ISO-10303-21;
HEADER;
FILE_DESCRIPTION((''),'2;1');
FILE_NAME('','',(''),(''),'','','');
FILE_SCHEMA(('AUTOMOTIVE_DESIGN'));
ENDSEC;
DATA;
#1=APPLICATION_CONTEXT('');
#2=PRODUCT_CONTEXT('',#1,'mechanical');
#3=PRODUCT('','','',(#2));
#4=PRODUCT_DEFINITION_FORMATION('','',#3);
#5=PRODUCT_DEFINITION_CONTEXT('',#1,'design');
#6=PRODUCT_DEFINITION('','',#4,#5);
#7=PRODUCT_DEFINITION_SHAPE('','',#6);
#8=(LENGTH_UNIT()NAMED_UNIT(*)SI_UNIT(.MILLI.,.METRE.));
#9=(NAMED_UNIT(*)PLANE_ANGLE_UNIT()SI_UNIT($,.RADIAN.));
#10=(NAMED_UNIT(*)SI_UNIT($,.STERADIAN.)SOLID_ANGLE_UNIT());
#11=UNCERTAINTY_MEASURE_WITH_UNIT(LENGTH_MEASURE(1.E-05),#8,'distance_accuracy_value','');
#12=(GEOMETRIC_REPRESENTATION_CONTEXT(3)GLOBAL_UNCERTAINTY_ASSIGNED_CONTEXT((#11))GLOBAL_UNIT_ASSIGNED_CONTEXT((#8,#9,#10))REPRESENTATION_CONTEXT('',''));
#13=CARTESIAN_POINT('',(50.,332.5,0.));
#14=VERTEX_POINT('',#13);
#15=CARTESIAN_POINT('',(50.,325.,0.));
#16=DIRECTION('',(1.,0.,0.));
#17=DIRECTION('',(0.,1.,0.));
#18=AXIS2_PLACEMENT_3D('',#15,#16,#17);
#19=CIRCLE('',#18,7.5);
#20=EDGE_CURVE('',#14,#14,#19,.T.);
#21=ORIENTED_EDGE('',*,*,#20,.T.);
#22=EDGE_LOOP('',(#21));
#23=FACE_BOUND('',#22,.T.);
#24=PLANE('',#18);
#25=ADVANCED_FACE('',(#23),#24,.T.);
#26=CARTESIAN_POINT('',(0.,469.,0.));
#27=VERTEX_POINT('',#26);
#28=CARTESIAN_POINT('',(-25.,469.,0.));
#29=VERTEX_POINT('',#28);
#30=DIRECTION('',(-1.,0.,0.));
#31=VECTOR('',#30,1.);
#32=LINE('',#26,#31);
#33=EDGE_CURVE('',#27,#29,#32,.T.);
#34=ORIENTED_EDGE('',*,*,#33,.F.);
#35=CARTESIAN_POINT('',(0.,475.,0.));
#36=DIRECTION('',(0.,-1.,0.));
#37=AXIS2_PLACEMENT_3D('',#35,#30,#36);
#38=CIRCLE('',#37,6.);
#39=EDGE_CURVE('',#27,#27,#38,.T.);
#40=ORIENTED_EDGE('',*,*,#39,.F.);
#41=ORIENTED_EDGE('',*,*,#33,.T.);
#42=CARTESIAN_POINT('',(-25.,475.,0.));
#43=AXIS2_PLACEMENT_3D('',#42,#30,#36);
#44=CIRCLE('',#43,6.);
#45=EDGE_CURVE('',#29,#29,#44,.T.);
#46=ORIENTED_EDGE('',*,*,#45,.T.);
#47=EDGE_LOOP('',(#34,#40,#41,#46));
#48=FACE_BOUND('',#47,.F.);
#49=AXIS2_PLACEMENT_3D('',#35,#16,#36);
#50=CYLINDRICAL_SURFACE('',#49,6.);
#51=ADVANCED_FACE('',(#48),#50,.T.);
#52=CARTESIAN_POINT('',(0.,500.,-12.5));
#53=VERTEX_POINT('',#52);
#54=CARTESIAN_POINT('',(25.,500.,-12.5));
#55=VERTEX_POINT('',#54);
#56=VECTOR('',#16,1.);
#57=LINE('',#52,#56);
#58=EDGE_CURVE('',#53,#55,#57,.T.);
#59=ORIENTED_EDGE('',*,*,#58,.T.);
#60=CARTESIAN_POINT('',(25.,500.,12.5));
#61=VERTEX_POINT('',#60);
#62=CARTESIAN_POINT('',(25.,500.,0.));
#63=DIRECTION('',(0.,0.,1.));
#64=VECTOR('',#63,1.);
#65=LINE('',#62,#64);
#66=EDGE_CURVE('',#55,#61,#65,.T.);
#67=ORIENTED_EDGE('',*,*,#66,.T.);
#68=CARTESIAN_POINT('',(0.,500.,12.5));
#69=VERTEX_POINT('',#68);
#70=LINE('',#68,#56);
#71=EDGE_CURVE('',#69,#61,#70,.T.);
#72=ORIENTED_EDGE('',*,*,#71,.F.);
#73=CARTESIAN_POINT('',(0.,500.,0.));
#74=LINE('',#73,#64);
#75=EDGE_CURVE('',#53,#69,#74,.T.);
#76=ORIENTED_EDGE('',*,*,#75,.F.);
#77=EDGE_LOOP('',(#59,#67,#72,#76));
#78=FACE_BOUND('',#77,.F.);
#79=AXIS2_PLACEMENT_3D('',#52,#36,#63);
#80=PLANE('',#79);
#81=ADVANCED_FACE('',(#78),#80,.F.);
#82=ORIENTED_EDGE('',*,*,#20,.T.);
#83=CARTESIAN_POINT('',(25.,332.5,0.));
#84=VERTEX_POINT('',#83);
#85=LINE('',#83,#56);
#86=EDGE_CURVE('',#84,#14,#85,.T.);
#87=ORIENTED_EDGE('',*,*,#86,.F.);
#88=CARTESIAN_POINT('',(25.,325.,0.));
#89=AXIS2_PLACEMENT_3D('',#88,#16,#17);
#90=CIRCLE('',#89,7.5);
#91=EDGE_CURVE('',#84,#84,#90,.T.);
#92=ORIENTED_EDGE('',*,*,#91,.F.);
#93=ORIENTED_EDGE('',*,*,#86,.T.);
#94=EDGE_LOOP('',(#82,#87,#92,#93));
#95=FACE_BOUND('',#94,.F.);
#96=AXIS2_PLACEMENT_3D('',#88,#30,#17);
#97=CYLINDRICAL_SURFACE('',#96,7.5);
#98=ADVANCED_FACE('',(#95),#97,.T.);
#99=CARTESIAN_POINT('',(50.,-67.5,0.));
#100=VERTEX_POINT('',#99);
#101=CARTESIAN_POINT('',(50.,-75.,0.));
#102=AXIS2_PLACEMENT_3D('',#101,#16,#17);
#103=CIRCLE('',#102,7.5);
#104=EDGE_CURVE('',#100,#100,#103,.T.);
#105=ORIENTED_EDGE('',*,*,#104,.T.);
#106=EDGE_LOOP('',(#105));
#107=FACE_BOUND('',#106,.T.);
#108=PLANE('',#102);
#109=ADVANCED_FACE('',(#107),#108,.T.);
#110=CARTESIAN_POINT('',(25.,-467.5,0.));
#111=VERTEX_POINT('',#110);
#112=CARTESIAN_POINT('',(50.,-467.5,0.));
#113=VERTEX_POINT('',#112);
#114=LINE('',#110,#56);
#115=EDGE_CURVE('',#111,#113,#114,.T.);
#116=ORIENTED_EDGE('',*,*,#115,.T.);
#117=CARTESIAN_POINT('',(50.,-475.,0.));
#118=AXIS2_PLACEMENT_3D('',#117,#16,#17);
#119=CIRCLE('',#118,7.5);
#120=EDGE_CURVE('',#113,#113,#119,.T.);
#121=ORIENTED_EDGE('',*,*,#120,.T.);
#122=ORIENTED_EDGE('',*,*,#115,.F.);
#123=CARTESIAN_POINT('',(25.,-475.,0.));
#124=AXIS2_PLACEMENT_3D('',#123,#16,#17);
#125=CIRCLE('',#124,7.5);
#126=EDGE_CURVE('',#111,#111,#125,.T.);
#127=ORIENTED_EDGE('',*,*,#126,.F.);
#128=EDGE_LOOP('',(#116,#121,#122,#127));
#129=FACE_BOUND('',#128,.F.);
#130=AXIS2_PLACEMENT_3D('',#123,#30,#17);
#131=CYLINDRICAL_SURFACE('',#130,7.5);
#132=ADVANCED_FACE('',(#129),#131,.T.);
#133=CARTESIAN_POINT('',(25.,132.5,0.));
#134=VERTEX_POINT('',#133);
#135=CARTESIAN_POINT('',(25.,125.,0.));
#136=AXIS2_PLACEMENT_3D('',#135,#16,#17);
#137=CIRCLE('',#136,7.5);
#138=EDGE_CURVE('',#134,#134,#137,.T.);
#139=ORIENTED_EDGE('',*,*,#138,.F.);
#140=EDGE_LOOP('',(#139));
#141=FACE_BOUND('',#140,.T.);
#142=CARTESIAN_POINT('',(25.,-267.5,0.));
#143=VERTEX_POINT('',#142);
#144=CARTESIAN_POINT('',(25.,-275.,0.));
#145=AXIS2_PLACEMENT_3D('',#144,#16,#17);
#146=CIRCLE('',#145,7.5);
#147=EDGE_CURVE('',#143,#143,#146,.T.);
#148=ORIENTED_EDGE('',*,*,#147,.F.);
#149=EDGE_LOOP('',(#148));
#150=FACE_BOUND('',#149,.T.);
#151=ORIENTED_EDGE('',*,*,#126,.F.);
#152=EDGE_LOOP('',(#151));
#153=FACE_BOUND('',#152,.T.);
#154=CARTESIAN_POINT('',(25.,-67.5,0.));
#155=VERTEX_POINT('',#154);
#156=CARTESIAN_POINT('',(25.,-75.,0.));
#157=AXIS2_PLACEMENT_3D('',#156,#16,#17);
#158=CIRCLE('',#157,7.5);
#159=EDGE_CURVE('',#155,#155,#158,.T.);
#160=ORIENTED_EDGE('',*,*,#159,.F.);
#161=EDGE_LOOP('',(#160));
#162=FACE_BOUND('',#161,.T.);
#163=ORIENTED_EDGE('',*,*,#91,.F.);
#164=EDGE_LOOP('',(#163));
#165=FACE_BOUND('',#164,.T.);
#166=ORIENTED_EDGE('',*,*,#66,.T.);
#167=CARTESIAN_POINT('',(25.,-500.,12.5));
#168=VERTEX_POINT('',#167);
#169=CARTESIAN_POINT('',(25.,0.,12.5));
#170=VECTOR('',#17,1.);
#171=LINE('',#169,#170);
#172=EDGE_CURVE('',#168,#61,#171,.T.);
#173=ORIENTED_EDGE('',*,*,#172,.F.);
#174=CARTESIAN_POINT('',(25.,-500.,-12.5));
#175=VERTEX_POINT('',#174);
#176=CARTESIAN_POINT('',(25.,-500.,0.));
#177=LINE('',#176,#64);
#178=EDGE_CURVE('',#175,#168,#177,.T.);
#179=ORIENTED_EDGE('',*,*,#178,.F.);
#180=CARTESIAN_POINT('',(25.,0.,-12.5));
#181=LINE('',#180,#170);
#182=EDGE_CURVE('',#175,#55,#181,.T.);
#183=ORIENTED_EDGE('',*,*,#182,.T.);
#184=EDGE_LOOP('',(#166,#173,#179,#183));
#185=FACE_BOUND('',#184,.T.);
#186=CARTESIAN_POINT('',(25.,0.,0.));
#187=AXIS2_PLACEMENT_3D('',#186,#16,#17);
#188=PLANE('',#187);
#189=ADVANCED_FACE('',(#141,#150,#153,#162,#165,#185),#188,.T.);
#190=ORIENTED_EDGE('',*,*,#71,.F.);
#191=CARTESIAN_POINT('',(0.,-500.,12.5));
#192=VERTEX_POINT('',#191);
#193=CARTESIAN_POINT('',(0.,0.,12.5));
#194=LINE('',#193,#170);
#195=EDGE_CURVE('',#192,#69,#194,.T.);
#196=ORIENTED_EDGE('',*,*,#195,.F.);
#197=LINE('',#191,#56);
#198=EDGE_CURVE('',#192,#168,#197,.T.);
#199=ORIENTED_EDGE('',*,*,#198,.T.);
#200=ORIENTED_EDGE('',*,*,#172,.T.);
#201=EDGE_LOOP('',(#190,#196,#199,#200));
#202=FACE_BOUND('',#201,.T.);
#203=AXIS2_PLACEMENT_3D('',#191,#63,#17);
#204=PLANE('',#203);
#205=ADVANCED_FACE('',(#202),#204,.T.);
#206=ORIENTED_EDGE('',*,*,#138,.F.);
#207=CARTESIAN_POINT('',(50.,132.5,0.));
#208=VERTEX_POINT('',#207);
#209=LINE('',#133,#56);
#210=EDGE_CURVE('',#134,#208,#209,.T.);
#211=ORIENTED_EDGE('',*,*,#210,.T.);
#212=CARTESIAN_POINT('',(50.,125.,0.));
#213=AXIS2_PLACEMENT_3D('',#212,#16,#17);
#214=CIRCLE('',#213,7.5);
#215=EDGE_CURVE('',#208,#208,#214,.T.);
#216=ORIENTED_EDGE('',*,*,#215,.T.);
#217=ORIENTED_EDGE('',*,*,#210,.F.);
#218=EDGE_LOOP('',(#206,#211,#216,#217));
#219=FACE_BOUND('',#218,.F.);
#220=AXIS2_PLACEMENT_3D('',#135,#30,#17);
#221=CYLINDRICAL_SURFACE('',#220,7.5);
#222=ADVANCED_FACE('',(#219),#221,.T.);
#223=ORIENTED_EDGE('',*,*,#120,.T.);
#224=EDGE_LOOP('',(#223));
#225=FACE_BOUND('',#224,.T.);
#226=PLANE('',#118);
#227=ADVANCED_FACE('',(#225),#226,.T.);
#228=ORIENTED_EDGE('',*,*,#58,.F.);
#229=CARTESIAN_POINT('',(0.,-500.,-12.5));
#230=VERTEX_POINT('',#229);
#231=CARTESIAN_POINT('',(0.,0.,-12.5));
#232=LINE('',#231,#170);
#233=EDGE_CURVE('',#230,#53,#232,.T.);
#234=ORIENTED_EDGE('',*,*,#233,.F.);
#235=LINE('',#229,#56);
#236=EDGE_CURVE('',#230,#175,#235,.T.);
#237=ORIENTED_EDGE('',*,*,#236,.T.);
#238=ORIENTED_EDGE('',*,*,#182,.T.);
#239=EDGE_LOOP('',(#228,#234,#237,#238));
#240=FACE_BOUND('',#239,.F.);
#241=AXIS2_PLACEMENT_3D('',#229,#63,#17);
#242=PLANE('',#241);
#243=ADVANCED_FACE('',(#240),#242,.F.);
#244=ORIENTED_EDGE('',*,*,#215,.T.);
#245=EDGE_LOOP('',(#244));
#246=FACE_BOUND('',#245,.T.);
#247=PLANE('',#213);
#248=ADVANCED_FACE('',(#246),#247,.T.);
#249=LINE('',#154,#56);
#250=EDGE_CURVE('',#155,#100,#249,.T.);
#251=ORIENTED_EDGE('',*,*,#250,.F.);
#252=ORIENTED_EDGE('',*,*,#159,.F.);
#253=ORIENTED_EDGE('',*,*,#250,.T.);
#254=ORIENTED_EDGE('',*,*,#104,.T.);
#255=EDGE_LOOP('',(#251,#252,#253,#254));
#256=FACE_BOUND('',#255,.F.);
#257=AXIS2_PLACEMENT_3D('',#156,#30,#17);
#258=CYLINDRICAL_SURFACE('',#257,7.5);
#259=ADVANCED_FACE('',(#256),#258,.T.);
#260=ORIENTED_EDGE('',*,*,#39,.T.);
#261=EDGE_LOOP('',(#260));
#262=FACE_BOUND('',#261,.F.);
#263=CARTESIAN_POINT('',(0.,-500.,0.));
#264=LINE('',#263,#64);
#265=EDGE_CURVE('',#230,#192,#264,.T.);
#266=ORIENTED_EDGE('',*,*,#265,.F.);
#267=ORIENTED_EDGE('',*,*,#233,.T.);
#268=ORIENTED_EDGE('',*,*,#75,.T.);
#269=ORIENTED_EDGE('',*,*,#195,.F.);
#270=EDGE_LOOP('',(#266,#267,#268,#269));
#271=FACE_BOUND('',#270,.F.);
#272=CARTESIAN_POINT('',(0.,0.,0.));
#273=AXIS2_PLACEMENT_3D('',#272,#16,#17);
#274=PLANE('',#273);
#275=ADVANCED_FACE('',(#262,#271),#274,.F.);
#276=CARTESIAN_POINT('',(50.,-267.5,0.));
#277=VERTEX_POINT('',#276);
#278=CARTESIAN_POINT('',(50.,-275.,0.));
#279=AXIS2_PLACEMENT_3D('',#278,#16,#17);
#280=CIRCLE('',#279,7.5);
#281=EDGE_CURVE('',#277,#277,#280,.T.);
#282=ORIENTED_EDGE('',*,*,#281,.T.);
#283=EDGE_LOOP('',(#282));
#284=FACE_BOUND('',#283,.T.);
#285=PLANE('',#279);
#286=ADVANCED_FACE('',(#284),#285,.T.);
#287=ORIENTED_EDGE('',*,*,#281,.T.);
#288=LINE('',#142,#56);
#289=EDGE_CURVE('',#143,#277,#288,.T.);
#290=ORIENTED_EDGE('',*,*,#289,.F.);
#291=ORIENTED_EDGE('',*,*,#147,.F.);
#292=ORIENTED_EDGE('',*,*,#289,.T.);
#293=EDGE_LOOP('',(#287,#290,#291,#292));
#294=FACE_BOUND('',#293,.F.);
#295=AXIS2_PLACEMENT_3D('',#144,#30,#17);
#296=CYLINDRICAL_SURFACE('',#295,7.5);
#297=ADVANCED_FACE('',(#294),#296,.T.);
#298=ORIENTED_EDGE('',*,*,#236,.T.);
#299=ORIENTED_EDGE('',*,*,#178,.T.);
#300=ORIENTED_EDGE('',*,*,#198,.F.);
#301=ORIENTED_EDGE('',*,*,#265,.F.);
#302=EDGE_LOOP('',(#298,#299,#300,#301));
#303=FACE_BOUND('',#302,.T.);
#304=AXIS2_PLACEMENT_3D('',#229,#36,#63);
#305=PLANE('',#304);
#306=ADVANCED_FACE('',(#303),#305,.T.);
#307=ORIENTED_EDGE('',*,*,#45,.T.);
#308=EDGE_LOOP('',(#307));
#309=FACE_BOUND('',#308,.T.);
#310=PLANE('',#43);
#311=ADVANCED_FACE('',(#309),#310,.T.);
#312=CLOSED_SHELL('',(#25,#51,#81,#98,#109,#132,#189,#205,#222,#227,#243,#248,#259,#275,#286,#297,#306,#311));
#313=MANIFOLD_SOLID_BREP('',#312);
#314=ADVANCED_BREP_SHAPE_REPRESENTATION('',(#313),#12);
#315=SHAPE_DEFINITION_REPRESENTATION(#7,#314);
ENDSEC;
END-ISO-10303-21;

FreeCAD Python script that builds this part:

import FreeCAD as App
import Part
import Sketcher
from FreeCAD import Vector

doc = App.newDocument("Part")
body = doc.addObject("PartDesign::Body", "Body")

# Sketch on YZ plane
sketch1 = body.newObject("Sketcher::SketchObject", "Sketch")
sketch1.AttachmentSupport = (doc.getObject("YZ_Plane"), [""])
sketch1.MapMode = "FlatFace"
sketch1.addGeometry([
    Part.LineSegment(Vector(-500, 12, 0), Vector(-500, -12, 0)),
    Part.LineSegment(Vector(-500, -12, 0), Vector(500, -12, 0)),
    Part.LineSegment(Vector(500, -12, 0), Vector(500, 12, 0)),
    Part.LineSegment(Vector(500, 12, 0), Vector(-500, 12, 0)),
], False)
sketch1.addConstraint([
    Sketcher.Constraint("Coincident", 0, 2, 1, 1),
    Sketcher.Constraint("Coincident", 1, 2, 2, 1),
    Sketcher.Constraint("Coincident", 2, 2, 3, 1),
    Sketcher.Constraint("Coincident", 3, 2, 0, 1),
    Sketcher.Constraint("Vertical", 0),
    Sketcher.Constraint("Horizontal", 1),
    Sketcher.Constraint("Vertical", 2),
    Sketcher.Constraint("Horizontal", 3),
    Sketcher.Constraint("Symmetric", 0, 2, 2, 2, -1, 1),
    Sketcher.Constraint("DistanceX", 1, 1, 1, 2, 1000.0),
    Sketcher.Constraint("DistanceY", 0, 2, 0, 1, 25.0),
])
pad1 = body.newObject("PartDesign::Pad", "Pad")
pad1.Profile = sketch1
pad1.Length = 25

# Sketch on YZ plane
sketch2 = body.newObject("Sketcher::SketchObject", "Sketch001")
sketch2.AttachmentSupport = (doc.getObject("YZ_Plane"), [""])
sketch2.MapMode = "FlatFace"
sketch2.AttachmentOffset = App.Placement(Vector(0, 0, 25), App.Rotation())
sketch2.addGeometry([
    Part.Circle(Vector(-475, 0, 0), Vector(0, 0, 1), 8),  # 0
    Part.Circle(Vector(-275, 0, 0), Vector(0, 0, 1), 8),  # 1
    Part.Circle(Vector(-75, 0, 0), Vector(0, 0, 1), 8),  # 2
    Part.Circle(Vector(125, 0, 0), Vector(0, 0, 1), 8),  # 3
    Part.Circle(Vector(325, 0, 0), Vector(0, 0, 1), 8),  # 4
], False)
sketch2.addConstraint([
    Sketcher.Constraint("Equal", 0, 1),
    Sketcher.Constraint("Equal", 1, 2),
    Sketcher.Constraint("Equal", 2, 3),
    Sketcher.Constraint("Equal", 3, 4),
    Sketcher.Constraint("PointOnObject", 0, 3, -1),
    Sketcher.Constraint("PointOnObject", 1, 3, -1),
    Sketcher.Constraint("PointOnObject", 2, 3, -1),
    Sketcher.Constraint("PointOnObject", 3, 3, -1),
    Sketcher.Constraint("PointOnObject", 4, 3, -1),
    Sketcher.Constraint("Diameter", 0, 15.0),
    Sketcher.Constraint("DistanceX", 0, 3, -1, 1, 475.0),
    Sketcher.Constraint("DistanceX", 1, 3, -1, 1, 275.0),
    Sketcher.Constraint("DistanceX", 2, 3, -1, 1, 75.0),
    Sketcher.Constraint("DistanceX", -1, 1, 3, 3, 125.0),
    Sketcher.Constraint("DistanceX", -1, 1, 4, 3, 325.0),
])
pad2 = body.newObject("PartDesign::Pad", "Pad001")
pad2.Profile = sketch2
pad2.Length = 25

# Sketch on YZ plane
sketch3 = body.newObject("Sketcher::SketchObject", "Sketch002")
sketch3.AttachmentSupport = (doc.getObject("YZ_Plane"), [""])
sketch3.MapMode = "FlatFace"
sketch3.addGeometry(Part.Circle(Vector(475, 0, 0), Vector(0, 0, 1), 6), False)
sketch3.addConstraint([
    Sketcher.Constraint("PointOnObject", 0, 3, -1),
    Sketcher.Constraint("Diameter", 0, 12.0),
    Sketcher.Constraint("DistanceX", -1, 1, 0, 3, 475.0),
])
pad3 = body.newObject("PartDesign::Pad", "Pad002")
pad3.Profile = sketch3
pad3.Length = 25
pad3.Reversed = True

doc.recompute()
